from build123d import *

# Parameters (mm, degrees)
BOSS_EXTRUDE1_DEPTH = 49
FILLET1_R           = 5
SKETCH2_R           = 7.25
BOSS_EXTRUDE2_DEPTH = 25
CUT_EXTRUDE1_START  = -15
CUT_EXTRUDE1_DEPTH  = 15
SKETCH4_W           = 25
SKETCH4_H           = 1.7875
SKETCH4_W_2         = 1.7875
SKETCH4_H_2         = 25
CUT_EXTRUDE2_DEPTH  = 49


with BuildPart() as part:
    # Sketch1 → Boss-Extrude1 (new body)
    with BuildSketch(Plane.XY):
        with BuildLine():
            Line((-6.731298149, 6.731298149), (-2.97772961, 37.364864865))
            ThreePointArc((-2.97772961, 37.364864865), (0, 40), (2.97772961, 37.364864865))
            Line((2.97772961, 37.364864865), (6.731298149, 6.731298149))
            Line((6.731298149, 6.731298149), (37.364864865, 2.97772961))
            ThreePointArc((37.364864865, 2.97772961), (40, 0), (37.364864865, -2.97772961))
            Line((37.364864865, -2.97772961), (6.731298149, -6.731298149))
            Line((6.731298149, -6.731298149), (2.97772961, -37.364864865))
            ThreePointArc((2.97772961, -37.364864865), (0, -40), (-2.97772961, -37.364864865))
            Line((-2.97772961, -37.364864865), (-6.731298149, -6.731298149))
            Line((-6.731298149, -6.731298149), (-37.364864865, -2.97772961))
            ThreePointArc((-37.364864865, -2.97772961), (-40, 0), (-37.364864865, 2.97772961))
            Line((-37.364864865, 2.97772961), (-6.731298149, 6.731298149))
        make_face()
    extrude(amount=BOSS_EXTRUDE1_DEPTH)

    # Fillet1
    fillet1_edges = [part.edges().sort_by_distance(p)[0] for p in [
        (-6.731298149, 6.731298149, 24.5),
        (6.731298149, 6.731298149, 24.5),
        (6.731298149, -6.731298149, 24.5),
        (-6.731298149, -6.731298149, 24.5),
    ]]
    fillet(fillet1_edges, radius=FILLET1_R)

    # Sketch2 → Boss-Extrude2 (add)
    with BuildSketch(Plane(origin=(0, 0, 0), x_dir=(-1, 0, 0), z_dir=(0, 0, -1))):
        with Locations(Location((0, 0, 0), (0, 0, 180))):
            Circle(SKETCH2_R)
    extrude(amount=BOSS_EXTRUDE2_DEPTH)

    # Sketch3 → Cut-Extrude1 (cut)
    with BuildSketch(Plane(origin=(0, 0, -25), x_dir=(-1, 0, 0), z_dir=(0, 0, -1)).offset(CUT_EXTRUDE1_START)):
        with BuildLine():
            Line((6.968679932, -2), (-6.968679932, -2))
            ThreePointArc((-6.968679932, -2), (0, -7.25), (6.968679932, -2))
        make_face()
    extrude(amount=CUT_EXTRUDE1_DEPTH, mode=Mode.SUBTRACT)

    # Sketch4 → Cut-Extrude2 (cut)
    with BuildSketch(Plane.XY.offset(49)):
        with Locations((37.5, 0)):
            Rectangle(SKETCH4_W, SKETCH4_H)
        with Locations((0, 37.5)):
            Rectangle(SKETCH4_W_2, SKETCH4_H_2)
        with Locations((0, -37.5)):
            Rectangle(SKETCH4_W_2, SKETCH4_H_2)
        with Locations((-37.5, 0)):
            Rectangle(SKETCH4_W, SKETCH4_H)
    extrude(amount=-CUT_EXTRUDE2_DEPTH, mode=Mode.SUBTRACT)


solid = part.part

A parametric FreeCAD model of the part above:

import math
import FreeCAD as App
import Part
import Sketcher


def edges_at(feature, points):
    """Names of the edges that pass closest to the given points."""
    edges = feature.Shape.Edges
    near = lambda p: min(range(len(edges)), key=lambda i: edges[i].distToShape(Part.Vertex(*p))[0])
    return sorted({f"Edge{near(p) + 1}" for p in points})

doc = App.newDocument("Part")
body = doc.addObject("PartDesign::Body", "Body")

sketch1 = doc.addObject("Sketcher::SketchObject", "Sketch")
body.addObject(sketch1)
sketch1.AttachmentSupport = (doc.XY_Plane, [""])
sketch1.MapMode = "FlatFace"
sketch1.addGeometry(Part.LineSegment(App.Vector(-2.97773, 37.364865, 0), App.Vector(-6.731298, 6.731298, 0)), False)
sketch1.addGeometry(Part.LineSegment(App.Vector(-6.731298, 6.731298, 0), App.Vector(-37.364865, 2.97773, 0)), False)
sketch1.addGeometry(Part.ArcOfCircle(Part.Circle(App.Vector(-37, 0, 0), App.Vector(0, 0, 1), 3), math.radians(96.9857), math.radians(263.0143)), False)
sketch1.addGeometry(Part.LineSegment(App.Vector(-37.364865, -2.97773, 0), App.Vector(-6.731298, -6.731298, 0)), False)
sketch1.addGeometry(Part.LineSegment(App.Vector(-6.731298, -6.731298, 0), App.Vector(-2.97773, -37.364865, 0)), False)
sketch1.addGeometry(Part.ArcOfCircle(Part.Circle(App.Vector(0, -37, 0), App.Vector(0, 0, 1), 3), math.radians(-173.0143), math.radians(-6.9857)), False)
sketch1.addGeometry(Part.LineSegment(App.Vector(2.97773, -37.364865, 0), App.Vector(6.731298, -6.731298, 0)), False)
sketch1.addGeometry(Part.LineSegment(App.Vector(6.731298, -6.731298, 0), App.Vector(37.364865, -2.97773, 0)), False)
sketch1.addGeometry(Part.ArcOfCircle(Part.Circle(App.Vector(37, 0, 0), App.Vector(0, 0, 1), 3), math.radians(-83.0143), math.radians(83.0143)), False)
sketch1.addGeometry(Part.LineSegment(App.Vector(37.364865, 2.97773, 0), App.Vector(6.731298, 6.731298, 0)), False)
sketch1.addGeometry(Part.LineSegment(App.Vector(6.731298, 6.731298, 0), App.Vector(2.97773, 37.364865, 0)), False)
sketch1.addGeometry(Part.ArcOfCircle(Part.Circle(App.Vector(0, 37, 0), App.Vector(0, 0, 1), 3), math.radians(6.9857), math.radians(173.0143)), False)
sketch1.addConstraint(Sketcher.Constraint("Coincident", 0, 2, 1, 1))
sketch1.addConstraint(Sketcher.Constraint("Tangent", 1, 2, 2, 1))
sketch1.addConstraint(Sketcher.Constraint("Tangent", 2, 2, 3, 1))
sketch1.addConstraint(Sketcher.Constraint("Coincident", 3, 2, 4, 1))
sketch1.addConstraint(Sketcher.Constraint("Tangent", 4, 2, 5, 1))
sketch1.addConstraint(Sketcher.Constraint("Tangent", 5, 2, 6, 1))
sketch1.addConstraint(Sketcher.Constraint("Coincident", 6, 2, 7, 1))
sketch1.addConstraint(Sketcher.Constraint("Tangent", 7, 2, 8, 1))
sketch1.addConstraint(Sketcher.Constraint("Tangent", 8, 2, 9, 1))
sketch1.addConstraint(Sketcher.Constraint("Coincident", 9, 2, 10, 1))
sketch1.addConstraint(Sketcher.Constraint("Tangent", 10, 2, 11, 1))
sketch1.addConstraint(Sketcher.Constraint("Tangent", 11, 2, 0, 1))
sketch1.addConstraint(Sketcher.Constraint("Equal", 2, 5))
sketch1.addConstraint(Sketcher.Constraint("Equal", 5, 8))
sketch1.addConstraint(Sketcher.Constraint("Equal", 8, 11))
sketch1.addConstraint(Sketcher.Constraint("Symmetric", 2, 3, 8, 3, -1, 1))
sketch1.addConstraint(Sketcher.Constraint("Symmetric", 5, 3, 11, 3, -1, 1))
sketch1.addConstraint(Sketcher.Constraint("Symmetric", 0, 2, 6, 2, -1, 1))
sketch1.addConstraint(Sketcher.Constraint("Symmetric", 3, 2, 9, 2, -1, 1))
sketch1.addConstraint(Sketcher.Constraint("Symmetric", 4, 2, 5, 2, -2))
sketch1.addConstraint(Sketcher.Constraint("Symmetric", 2, 2, 7, 2, -2))
sketch1.addConstraint(Sketcher.Constraint("Perpendicular", 0, 3))
sketch1.addConstraint(Sketcher.Constraint("Equal", 0, 1))
sketch1.addConstraint(Sketcher.Constraint("Radius", 2, 3.0))
sketch1.addConstraint(Sketcher.Constraint("DistanceX", 2, 3, -1, 1, 37.0))
sketch1.addConstraint(Sketcher.Constraint("DistanceX", 0, 2, -1, 1, 6.731298))
pad1 = doc.addObject("PartDesign::Pad", "Pad")
body.addObject(pad1)
pad1.Profile = sketch1
pad1.Length = 49
doc.recompute()

fillet = doc.addObject("PartDesign::Fillet", "Fillet")
body.addObject(fillet)
fillet.Base = (pad1, edges_at(pad1, [
    (-6.731, 6.731, 24.5),
    (6.731, 6.731, 24.5),
    (6.731, -6.731, 24.5),
    (-6.731, -6.731, 24.5),
]))
fillet.Radius = 5

sketch2 = doc.addObject("Sketcher::SketchObject", "Sketch001")
body.addObject(sketch2)
sketch2.AttachmentSupport = (doc.XY_Plane, [""])
sketch2.MapMode = "FlatFace"
sketch2.addGeometry(Part.Circle(App.Vector(0, 0, 0), App.Vector(0, 0, 1), 7.25), False)
sketch2.addConstraint(Sketcher.Constraint("Coincident", 0, 3, -1, 1))
sketch2.addConstraint(Sketcher.Constraint("Diameter", 0, 14.5))
pad2 = doc.addObject("PartDesign::Pad", "Pad001")
body.addObject(pad2)
pad2.Profile = sketch2
pad2.Length = 25
pad2.Reversed = True

sketch3 = doc.addObject("Sketcher::SketchObject", "Sketch002")
body.addObject(sketch3)
sketch3.AttachmentSupport = (doc.XY_Plane, [""])
sketch3.MapMode = "FlatFace"
sketch3.AttachmentOffset = App.Placement(App.Vector(0, 0, -10), App.Rotation())
sketch3.addGeometry(Part.LineSegment(App.Vector(-6.96868, -2, 0), App.Vector(6.96868, -2, 0)), False)
sketch3.addGeometry(Part.ArcOfCircle(Part.Circle(App.Vector(0, 0, 0), App.Vector(0, 0, 1), 7.25), math.radians(-163.986606), math.radians(-16.013394)), False)
sketch3.addConstraint(Sketcher.Constraint("Coincident", 0, 1, 1, 1))
sketch3.addConstraint(Sketcher.Constraint("Coincident", 1, 2, 0, 2))
sketch3.addConstraint(Sketcher.Constraint("Horizontal", 0))
sketch3.addConstraint(Sketcher.Constraint("Coincident", 1, 3, -1, 1))
sketch3.addConstraint(Sketcher.Constraint("Radius", 1, 7.25))
sketch3.addConstraint(Sketcher.Constraint("DistanceY", 0, 1, -1, 1, 2.0))
pocket1 = doc.addObject("PartDesign::Pocket", "Pocket")
body.addObject(pocket1)
pocket1.Profile = sketch3
pocket1.Length = 15

sketch4 = doc.addObject("Sketcher::SketchObject", "Sketch003")
body.addObject(sketch4)
sketch4.AttachmentSupport = (doc.XY_Plane, [""])
sketch4.MapMode = "FlatFace"
sketch4.AttachmentOffset = App.Placement(App.Vector(0, 0, 49), App.Rotation())
sketch4.addGeometry(Part.LineSegment(App.Vector(25, 0.89375, 0), App.Vector(25, -0.89375, 0)), False)
sketch4.addGeometry(Part.LineSegment(App.Vector(25, -0.89375, 0), App.Vector(50, -0.89375, 0)), False)
sketch4.addGeometry(Part.LineSegment(App.Vector(50, -0.89375, 0), App.Vector(50, 0.89375, 0)), False)
sketch4.addGeometry(Part.LineSegment(App.Vector(50, 0.89375, 0), App.Vector(25, 0.89375, 0)), False)
sketch4.addGeometry(Part.LineSegment(App.Vector(-0.89375, 50, 0), App.Vector(-0.89375, 25, 0)), False)
sketch4.addGeometry(Part.LineSegment(App.Vector(-0.89375, 25, 0), App.Vector(0.89375, 25, 0)), False)
sketch4.addGeometry(Part.LineSegment(App.Vector(0.89375, 25, 0), App.Vector(0.89375, 50, 0)), False)
sketch4.addGeometry(Part.LineSegment(App.Vector(0.89375, 50, 0), App.Vector(-0.89375, 50, 0)), False)
sketch4.addGeometry(Part.LineSegment(App.Vector(-0.89375, -25, 0), App.Vector(-0.89375, -50, 0)), False)
sketch4.addGeometry(Part.LineSegment(App.Vector(-0.89375, -50, 0), App.Vector(0.89375, -50, 0)), False)
sketch4.addGeometry(Part.LineSegment(App.Vector(0.89375, -50, 0), App.Vector(0.89375, -25, 0)), False)
sketch4.addGeometry(Part.LineSegment(App.Vector(0.89375, -25, 0), App.Vector(-0.89375, -25, 0)), False)
sketch4.addGeometry(Part.LineSegment(App.Vector(-50, 0.89375, 0), App.Vector(-50, -0.89375, 0)), False)
sketch4.addGeometry(Part.LineSegment(App.Vector(-50, -0.89375, 0), App.Vector(-25, -0.89375, 0)), False)
sketch4.addGeometry(Part.LineSegment(App.Vector(-25, -0.89375, 0), App.Vector(-25, 0.89375, 0)), False)
sketch4.addGeometry(Part.LineSegment(App.Vector(-25, 0.89375, 0), App.Vector(-50, 0.89375, 0)), False)
sketch4.addConstraint(Sketcher.Constraint("Coincident", 0, 2, 1, 1))
sketch4.addConstraint(Sketcher.Constraint("Coincident", 1, 2, 2, 1))
sketch4.addConstraint(Sketcher.Constraint("Coincident", 2, 2, 3, 1))
sketch4.addConstraint(Sketcher.Constraint("Coincident", 3, 2, 0, 1))
sketch4.addConstraint(Sketcher.Constraint("Coincident", 4, 2, 5, 1))
sketch4.addConstraint(Sketcher.Constraint("Coincident", 5, 2, 6, 1))
sketch4.addConstraint(Sketcher.Constraint("Coincident", 6, 2, 7, 1))
sketch4.addConstraint(Sketcher.Constraint("Coincident", 7, 2, 4, 1))
sketch4.addConstraint(Sketcher.Constraint("Coincident", 8, 2, 9, 1))
sketch4.addConstraint(Sketcher.Constraint("Coincident", 9, 2, 10, 1))
sketch4.addConstraint(Sketcher.Constraint("Coincident", 10, 2, 11, 1))
sketch4.addConstraint(Sketcher.Constraint("Coincident", 11, 2, 8, 1))
sketch4.addConstraint(Sketcher.Constraint("Coincident", 12, 2, 13, 1))
sketch4.addConstraint(Sketcher.Constraint("Coincident", 13, 2, 14, 1))
sketch4.addConstraint(Sketcher.Constraint("Coincident", 14, 2, 15, 1))
sketch4.addConstraint(Sketcher.Constraint("Coincident", 15, 2, 12, 1))
sketch4.addConstraint(Sketcher.Constraint("Vertical", 0))
sketch4.addConstraint(Sketcher.Constraint("Horizontal", 1))
sketch4.addConstraint(Sketcher.Constraint("Vertical", 2))
sketch4.addConstraint(Sketcher.Constraint("Horizontal", 3))
sketch4.addConstraint(Sketcher.Constraint("Vertical", 4))
sketch4.addConstraint(Sketcher.Constraint("Horizontal", 5))
sketch4.addConstraint(Sketcher.Constraint("Vertical", 6))
sketch4.addConstraint(Sketcher.Constraint("Horizontal", 7))
sketch4.addConstraint(Sketcher.Constraint("Vertical", 8))
sketch4.addConstraint(Sketcher.Constraint("Horizontal", 9))
sketch4.addConstraint(Sketcher.Constraint("Vertical", 10))
sketch4.addConstraint(Sketcher.Constraint("Horizontal", 11))
sketch4.addConstraint(Sketcher.Constraint("Vertical", 12))
sketch4.addConstraint(Sketcher.Constraint("Horizontal", 13))
sketch4.addConstraint(Sketcher.Constraint("Vertical", 14))
sketch4.addConstraint(Sketcher.Constraint("Horizontal", 15))
sketch4.addConstraint(Sketcher.Constraint("Symmetric", 6, 2, 8, 2, -1, 1))
sketch4.addConstraint(Sketcher.Constraint("Symmetric", 4, 2, 10, 2, -1, 1))
sketch4.addConstraint(Sketcher.Constraint("Symmetric", 2, 2, 12, 2, -1, 1))
sketch4.addConstraint(Sketcher.Constraint("Symmetric", 0, 2, 14, 2, -1, 1))
sketch4.addConstraint(Sketcher.Constraint("Horizontal", 1, 2, 12, 2))
sketch4.addConstraint(Sketcher.Constraint("Vertical", 7, 2, 8, 2))
sketch4.addConstraint(Sketcher.Constraint("Equal", 11, 0))
sketch4.addConstraint(Sketcher.Constraint("Equal", 15, 4))
sketch4.addConstraint(Sketcher.Constraint("DistanceX", 1, 1, 1, 2, 25.0))
sketch4.addConstraint(Sketcher.Constraint("DistanceX", -1, 1, 0, 2, 25.0))
sketch4.addConstraint(Sketcher.Constraint("DistanceY", -1, 1, 4, 2, 25.0))
sketch4.addConstraint(Sketcher.Constraint("DistanceX", 5, 1, 5, 2, 1.7875))
pocket2 = doc.addObject("PartDesign::Pocket", "Pocket001")
body.addObject(pocket2)
pocket2.Profile = sketch4
pocket2.Length = 49

doc.recompute()
